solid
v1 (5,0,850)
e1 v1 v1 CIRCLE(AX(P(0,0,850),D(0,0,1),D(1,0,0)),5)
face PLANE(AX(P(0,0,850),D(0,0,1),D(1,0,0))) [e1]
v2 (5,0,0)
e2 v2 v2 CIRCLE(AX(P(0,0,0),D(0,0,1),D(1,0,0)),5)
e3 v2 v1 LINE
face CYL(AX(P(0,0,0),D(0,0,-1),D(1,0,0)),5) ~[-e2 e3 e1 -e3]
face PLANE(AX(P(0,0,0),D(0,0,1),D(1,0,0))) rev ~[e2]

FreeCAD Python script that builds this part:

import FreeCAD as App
import Part
import Sketcher
from FreeCAD import Vector
Q = App.Units.Quantity

doc = App.newDocument("Part")
body = doc.addObject("PartDesign::Body", "Body")

sketch1 = doc.addObject("Sketcher::SketchObject", "Sketch")
body.addObject(sketch1)
sketch1.AttachmentSupport = (doc.XY_Plane, [""])
sketch1.MapMode = "FlatFace"
sketch1.addGeometry(Part.Circle(Vector(0, 0, 0), Vector(0, 0, 1), 5), False)
sketch1.addConstraint(Sketcher.Constraint("Coincident", 0, 3, -1, 1))
sketch1.addConstraint(Sketcher.Constraint("Diameter", 0, Q("10 mm")))
pad1 = doc.addObject("PartDesign::Pad", "Pad")
body.addObject(pad1)
pad1.Profile = sketch1
pad1.Length = 850

doc.recompute()
